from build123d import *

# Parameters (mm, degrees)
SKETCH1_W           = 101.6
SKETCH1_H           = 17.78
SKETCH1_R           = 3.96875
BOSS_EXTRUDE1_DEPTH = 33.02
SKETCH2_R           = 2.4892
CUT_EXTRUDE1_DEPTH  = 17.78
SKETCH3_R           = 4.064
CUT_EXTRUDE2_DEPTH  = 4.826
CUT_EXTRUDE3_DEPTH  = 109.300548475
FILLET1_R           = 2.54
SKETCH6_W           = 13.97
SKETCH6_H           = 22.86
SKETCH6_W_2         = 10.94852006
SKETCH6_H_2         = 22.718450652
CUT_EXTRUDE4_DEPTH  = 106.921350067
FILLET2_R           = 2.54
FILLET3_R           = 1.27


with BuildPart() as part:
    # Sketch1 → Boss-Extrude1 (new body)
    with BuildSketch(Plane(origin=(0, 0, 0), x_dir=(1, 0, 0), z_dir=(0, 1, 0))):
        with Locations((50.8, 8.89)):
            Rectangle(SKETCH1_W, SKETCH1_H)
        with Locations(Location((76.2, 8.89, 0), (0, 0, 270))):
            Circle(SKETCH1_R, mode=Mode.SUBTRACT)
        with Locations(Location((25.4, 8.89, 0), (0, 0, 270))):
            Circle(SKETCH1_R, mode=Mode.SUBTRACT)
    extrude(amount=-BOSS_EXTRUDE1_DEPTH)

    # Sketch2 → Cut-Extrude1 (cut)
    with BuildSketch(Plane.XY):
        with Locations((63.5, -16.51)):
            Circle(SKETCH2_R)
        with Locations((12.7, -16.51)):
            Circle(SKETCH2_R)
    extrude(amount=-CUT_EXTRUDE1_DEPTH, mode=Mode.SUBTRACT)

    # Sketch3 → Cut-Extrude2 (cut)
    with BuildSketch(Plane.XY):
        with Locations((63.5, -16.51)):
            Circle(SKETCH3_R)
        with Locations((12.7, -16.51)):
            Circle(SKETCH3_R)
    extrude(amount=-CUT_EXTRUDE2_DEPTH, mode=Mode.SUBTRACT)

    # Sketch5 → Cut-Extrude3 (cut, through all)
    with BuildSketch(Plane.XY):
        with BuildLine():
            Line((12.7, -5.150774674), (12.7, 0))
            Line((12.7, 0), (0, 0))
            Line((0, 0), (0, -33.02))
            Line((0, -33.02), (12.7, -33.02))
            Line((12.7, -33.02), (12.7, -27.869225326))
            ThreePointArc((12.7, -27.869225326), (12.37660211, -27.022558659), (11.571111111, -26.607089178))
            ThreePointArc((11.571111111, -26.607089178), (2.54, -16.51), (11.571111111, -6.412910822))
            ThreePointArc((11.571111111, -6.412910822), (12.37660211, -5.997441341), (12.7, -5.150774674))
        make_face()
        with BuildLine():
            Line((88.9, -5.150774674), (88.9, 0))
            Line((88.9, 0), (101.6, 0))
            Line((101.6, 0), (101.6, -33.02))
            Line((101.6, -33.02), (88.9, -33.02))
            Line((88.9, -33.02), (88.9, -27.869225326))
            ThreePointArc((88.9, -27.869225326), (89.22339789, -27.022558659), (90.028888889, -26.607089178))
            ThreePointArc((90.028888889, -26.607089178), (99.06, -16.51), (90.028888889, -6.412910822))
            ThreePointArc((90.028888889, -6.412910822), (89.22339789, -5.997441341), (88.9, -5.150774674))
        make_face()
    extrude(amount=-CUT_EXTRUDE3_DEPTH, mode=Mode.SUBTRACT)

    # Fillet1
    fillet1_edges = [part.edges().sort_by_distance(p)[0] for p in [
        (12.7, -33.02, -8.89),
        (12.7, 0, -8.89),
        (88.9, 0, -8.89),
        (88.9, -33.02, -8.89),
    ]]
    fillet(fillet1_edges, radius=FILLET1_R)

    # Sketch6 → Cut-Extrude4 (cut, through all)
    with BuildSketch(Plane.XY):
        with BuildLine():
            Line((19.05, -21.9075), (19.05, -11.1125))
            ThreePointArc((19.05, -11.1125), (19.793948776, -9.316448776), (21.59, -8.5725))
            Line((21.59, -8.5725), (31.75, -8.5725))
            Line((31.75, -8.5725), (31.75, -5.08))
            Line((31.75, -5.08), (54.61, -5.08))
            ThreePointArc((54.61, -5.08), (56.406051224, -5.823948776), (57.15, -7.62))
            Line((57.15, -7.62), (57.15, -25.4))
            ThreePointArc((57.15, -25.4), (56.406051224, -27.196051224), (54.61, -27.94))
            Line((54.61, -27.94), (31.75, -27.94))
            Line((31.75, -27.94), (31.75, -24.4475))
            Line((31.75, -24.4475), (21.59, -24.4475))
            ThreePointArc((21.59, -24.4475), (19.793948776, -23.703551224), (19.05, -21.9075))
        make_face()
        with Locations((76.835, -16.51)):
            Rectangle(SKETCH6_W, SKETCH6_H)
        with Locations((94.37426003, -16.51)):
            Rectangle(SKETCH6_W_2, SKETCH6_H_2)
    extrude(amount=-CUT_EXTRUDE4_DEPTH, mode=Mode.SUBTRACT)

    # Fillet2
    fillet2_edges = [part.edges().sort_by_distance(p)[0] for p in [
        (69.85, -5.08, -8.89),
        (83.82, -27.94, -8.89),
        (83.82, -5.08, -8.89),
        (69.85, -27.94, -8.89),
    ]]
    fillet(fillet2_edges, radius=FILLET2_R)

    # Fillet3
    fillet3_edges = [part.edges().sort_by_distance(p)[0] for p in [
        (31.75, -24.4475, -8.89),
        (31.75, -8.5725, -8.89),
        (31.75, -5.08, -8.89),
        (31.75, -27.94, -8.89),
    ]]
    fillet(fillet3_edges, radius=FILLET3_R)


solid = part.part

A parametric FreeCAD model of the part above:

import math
import FreeCAD as App
import Part
import Sketcher
Q = App.Units.Quantity


def edges_at(feature, points):
    """Names of the edges that pass closest to the given points."""
    edges = feature.Shape.Edges
    near = lambda p: min(range(len(edges)), key=lambda i: edges[i].distToShape(Part.Vertex(*p))[0])
    return sorted({f"Edge{near(p) + 1}" for p in points})

doc = App.newDocument("Part")
params = doc.addObject("Spreadsheet::Sheet", "Params")
for row, (alias, value) in enumerate([
    ("sketch1_width", "4 in"),
    ("sketch1_diameter", "0.3125 in"),
    ("sketch1_height", "0.7 in"),
    ("pad1_length", "1.3 in"),
    ("sketch2_diameter", "0.196 in"),
    ("pocket1_length", "0.7 in"),
    ("sketch3_diameter", "0.32 in"),
    ("pocket2_length", "0.19 in"),
    ("sketch4_radius", "0.4 in"),
    ("sketch4_radius2", "0.05 in"),
    ("sketch4_width", "0.5 in"),
    ("sketch4_height", "1.3 in"),
    ("fillet_radius", "0.1 in"),
    ("sketch5_radius", "0.1 in"),
    ("sketch5_width", "0.4 in"),
    ("sketch5_width2", "0.9 in"),
    ("sketch5_width3", "0.55 in"),
    ("sketch5_height", "0.425 in"),
    ("fillet2_radius", "0.1 in"),
    ("fillet3_radius", "0.05 in"),
], start=1):
    params.set(f"A{row}", alias)
    params.set(f"B{row}", "=" + value)
    params.setAlias(f"B{row}", alias)

body = doc.addObject("PartDesign::Body", "Body")

sketch1 = body.newObject("Sketcher::SketchObject", "Sketch")
sketch1.AttachmentSupport = (doc.getObject("XZ_Plane"), [""])
sketch1.MapMode = "FlatFace"
sketch1.addGeometry(Part.LineSegment(App.Vector(0, -17.8, 0), App.Vector(0, 0, 0)), False)
sketch1.addGeometry(Part.LineSegment(App.Vector(0, 0, 0), App.Vector(101.6, 0, 0)), False)
sketch1.addGeometry(Part.LineSegment(App.Vector(101.6, 0, 0), App.Vector(101.6, -17.8, 0)), False)
sketch1.addGeometry(Part.LineSegment(App.Vector(101.6, -17.8, 0), App.Vector(0, -17.8, 0)), False)
sketch1.addGeometry(Part.Circle(App.Vector(25.4, -8.9, 0), App.Vector(0, 0, 1), 4), False)
sketch1.addGeometry(Part.Circle(App.Vector(76.2, -8.9, 0), App.Vector(0, 0, 1), 4), False)
sketch1.addConstraint(Sketcher.Constraint("Coincident", 0, 2, 1, 1))
sketch1.addConstraint(Sketcher.Constraint("Coincident", 1, 2, 2, 1))
sketch1.addConstraint(Sketcher.Constraint("Coincident", 2, 2, 3, 1))
sketch1.addConstraint(Sketcher.Constraint("Coincident", 3, 2, 0, 1))
sketch1.addConstraint(Sketcher.Constraint("Vertical", 0))
sketch1.addConstraint(Sketcher.Constraint("Horizontal", 1))
sketch1.addConstraint(Sketcher.Constraint("Vertical", 2))
sketch1.addConstraint(Sketcher.Constraint("Horizontal", 3))
sketch1.addConstraint(Sketcher.Constraint("Coincident", 0, 2, -1, 1))
sketch1.addConstraint(Sketcher.Constraint("Equal", 4, 5))
sketch1.addConstraint(Sketcher.Constraint("Horizontal", 4, 3, 5, 3))
sketch1.addConstraint(Sketcher.Constraint("DistanceX", 1, 1, 1, 2, Q("4 in")))
sketch1.addConstraint(Sketcher.Constraint("Diameter", 4, Q("0.3125 in")))
sketch1.addConstraint(Sketcher.Constraint("DistanceY", 0, 1, 0, 2, Q("0.7 in")))
sketch1.addConstraint(Sketcher.Constraint("DistanceX", -1, 1, 4, 3, Q("1 in")))
sketch1.addConstraint(Sketcher.Constraint("DistanceX", -1, 1, 5, 3, Q("3 in")))
sketch1.addConstraint(Sketcher.Constraint("DistanceY", 4, 3, -1, 1, Q("0.35 in")))
sketch1.setExpression("Constraints[11]", "Params.sketch1_width")
sketch1.setExpression("Constraints[12]", "Params.sketch1_diameter")
sketch1.setExpression("Constraints[13]", "Params.sketch1_height")
pad1 = body.newObject("PartDesign::Pad", "Pad")
pad1.Profile = sketch1
pad1.setExpression("Length", "Params.pad1_length")

sketch2 = body.newObject("Sketcher::SketchObject", "Sketch001")
sketch2.AttachmentSupport = (doc.getObject("XY_Plane"), [""])
sketch2.MapMode = "FlatFace"
sketch2.addGeometry(Part.Circle(App.Vector(63.5, -16.5, 0), App.Vector(0, 0, 1), 2.5), False)
sketch2.addGeometry(Part.Circle(App.Vector(12.7, -16.5, 0), App.Vector(0, 0, 1), 2.5), False)
sketch2.addConstraint(Sketcher.Constraint("Equal", 0, 1))
sketch2.addConstraint(Sketcher.Constraint("Horizontal", 0, 3, 1, 3))
sketch2.addConstraint(Sketcher.Constraint("Diameter", 0, Q("0.196 in")))
sketch2.addConstraint(Sketcher.Constraint("DistanceX", 1, 3, 0, 3, Q("2 in")))
sketch2.addConstraint(Sketcher.Constraint("DistanceX", -1, 1, 0, 3, Q("2.5 in")))
sketch2.addConstraint(Sketcher.Constraint("DistanceY", 0, 3, -1, 1, Q("0.65 in")))
sketch2.setExpression("Constraints[2]", "Params.sketch2_diameter")
pocket1 = body.newObject("PartDesign::Pocket", "Pocket")
pocket1.Profile = sketch2
pocket1.setExpression("Length", "Params.pocket1_length")

sketch3 = body.newObject("Sketcher::SketchObject", "Sketch002")
sketch3.AttachmentSupport = (doc.getObject("XY_Plane"), [""])
sketch3.MapMode = "FlatFace"
sketch3.addGeometry(Part.Circle(App.Vector(63.5, -16.5, 0), App.Vector(0, 0, 1), 4.1), False)
sketch3.addGeometry(Part.Circle(App.Vector(12.7, -16.5, 0), App.Vector(0, 0, 1), 4.1), False)
sketch3.addConstraint(Sketcher.Constraint("Equal", 0, 1))
sketch3.addConstraint(Sketcher.Constraint("Horizontal", 0, 3, 1, 3))
sketch3.addConstraint(Sketcher.Constraint("Diameter", 0, Q("0.32 in")))
sketch3.addConstraint(Sketcher.Constraint("DistanceX", 1, 3, 0, 3, Q("2 in")))
sketch3.addConstraint(Sketcher.Constraint("DistanceX", -1, 1, 0, 3, Q("2.5 in")))
sketch3.addConstraint(Sketcher.Constraint("DistanceY", 0, 3, -1, 1, Q("0.65 in")))
sketch3.setExpression("Constraints[2]", "Params.sketch3_diameter")
pocket2 = body.newObject("PartDesign::Pocket", "Pocket001")
pocket2.Profile = sketch3
pocket2.setExpression("Length", "Params.pocket2_length")

sketch4 = body.newObject("Sketcher::SketchObject", "Sketch003")
sketch4.AttachmentSupport = (doc.getObject("XY_Plane"), [""])
sketch4.MapMode = "FlatFace"
sketch4.addGeometry(Part.LineSegment(App.Vector(12.7, -5.2, 0), App.Vector(12.7, 0, 0)), False)
sketch4.addGeometry(Part.LineSegment(App.Vector(12.7, 0, 0), App.Vector(0, 0, 0)), False)
sketch4.addGeometry(Part.LineSegment(App.Vector(0, 0, 0), App.Vector(0, -33, 0)), False)
sketch4.addGeometry(Part.LineSegment(App.Vector(0, -33, 0), App.Vector(12.7, -33, 0)), False)
sketch4.addGeometry(Part.LineSegment(App.Vector(12.7, -33, 0), App.Vector(12.7, -27.9, 0)), False)
sketch4.addGeometry(Part.ArcOfCircle(Part.Circle(App.Vector(11.4, -27.9, 0), App.Vector(0, 0, 1), 1.3), math.radians(0), math.radians(84)), False)
sketch4.addGeometry(Part.ArcOfCircle(Part.Circle(App.Vector(12.7, -16.5, 0), App.Vector(0, 0, 1), 10.2), math.radians(96), math.radians(264)), False)
sketch4.addGeometry(Part.ArcOfCircle(Part.Circle(App.Vector(11.4, -5.2, 0), App.Vector(0, 0, 1), 1.3), math.radians(-84), math.radians(0)), False)
sketch4.addGeometry(Part.LineSegment(App.Vector(88.9, 0, 0), App.Vector(88.9, -5.2, 0)), False)
sketch4.addGeometry(Part.ArcOfCircle(Part.Circle(App.Vector(90.2, -5.2, 0), App.Vector(0, 0, 1), 1.3), math.radians(-180), math.radians(-96)), False)
sketch4.addGeometry(Part.ArcOfCircle(Part.Circle(App.Vector(88.9, -16.5, 0), App.Vector(0, 0, 1), 10.2), math.radians(-84), math.radians(84)), False)
sketch4.addGeometry(Part.ArcOfCircle(Part.Circle(App.Vector(90.2, -27.9, 0), App.Vector(0, 0, 1), 1.3), math.radians(96), math.radians(180)), False)
sketch4.addGeometry(Part.LineSegment(App.Vector(88.9, -27.9, 0), App.Vector(88.9, -33, 0)), False)
sketch4.addGeometry(Part.LineSegment(App.Vector(88.9, -33, 0), App.Vector(101.6, -33, 0)), False)
sketch4.addGeometry(Part.LineSegment(App.Vector(101.6, -33, 0), App.Vector(101.6, 0, 0)), False)
sketch4.addGeometry(Part.LineSegment(App.Vector(101.6, 0, 0), App.Vector(88.9, 0, 0)), False)
sketch4.addConstraint(Sketcher.Constraint("Coincident", 0, 2, 1, 1))
sketch4.addConstraint(Sketcher.Constraint("Coincident", 1, 2, 2, 1))
sketch4.addConstraint(Sketcher.Constraint("Coincident", 2, 2, 3, 1))
sketch4.addConstraint(Sketcher.Constraint("Coincident", 3, 2, 4, 1))
sketch4.addConstraint(Sketcher.Constraint("Tangent", 4, 2, 5, 1))
sketch4.addConstraint(Sketcher.Constraint("Tangent", 5, 2, 6, 2))
sketch4.addConstraint(Sketcher.Constraint("Tangent", 6, 1, 7, 1))
sketch4.addConstraint(Sketcher.Constraint("Tangent", 7, 2, 0, 1))
sketch4.addConstraint(Sketcher.Constraint("Tangent", 8, 2, 9, 1))
sketch4.addConstraint(Sketcher.Constraint("Tangent", 9, 2, 10, 2))
sketch4.addConstraint(Sketcher.Constraint("Tangent", 10, 1, 11, 1))
sketch4.addConstraint(Sketcher.Constraint("Tangent", 11, 2, 12, 1))
sketch4.addConstraint(Sketcher.Constraint("Coincident", 12, 2, 13, 1))
sketch4.addConstraint(Sketcher.Constraint("Coincident", 13, 2, 14, 1))
sketch4.addConstraint(Sketcher.Constraint("Coincident", 14, 2, 15, 1))
sketch4.addConstraint(Sketcher.Constraint("Coincident", 15, 2, 8, 1))
sketch4.addConstraint(Sketcher.Constraint("Vertical", 0))
sketch4.addConstraint(Sketcher.Constraint("Horizontal", 1))
sketch4.addConstraint(Sketcher.Constraint("Vertical", 2))
sketch4.addConstraint(Sketcher.Constraint("Horizontal", 3))
sketch4.addConstraint(Sketcher.Constraint("Vertical", 4))
sketch4.addConstraint(Sketcher.Constraint("Vertical", 8))
sketch4.addConstraint(Sketcher.Constraint("Vertical", 12))
sketch4.addConstraint(Sketcher.Constraint("Horizontal", 13))
sketch4.addConstraint(Sketcher.Constraint("Vertical", 14))
sketch4.addConstraint(Sketcher.Constraint("Horizontal", 15))
sketch4.addConstraint(Sketcher.Constraint("Coincident", 1, 2, -1, 1))
sketch4.addConstraint(Sketcher.Constraint("Equal", 5, 7))
sketch4.addConstraint(Sketcher.Constraint("Equal", 7, 9))
sketch4.addConstraint(Sketcher.Constraint("Equal", 6, 10))
sketch4.addConstraint(Sketcher.Constraint("Equal", 9, 11))
sketch4.addConstraint(Sketcher.Constraint("PointOnObject", 14, 2, -1))
sketch4.addConstraint(Sketcher.Constraint("Horizontal", 7, 3, 9, 3))
sketch4.addConstraint(Sketcher.Constraint("Horizontal", 6, 3, 10, 3))
sketch4.addConstraint(Sketcher.Constraint("Horizontal", 5, 3, 11, 3))
sketch4.addConstraint(Sketcher.Constraint("Horizontal", 3, 2, 12, 2))
sketch4.addConstraint(Sketcher.Constraint("Vertical", 5, 3, 7, 3))
sketch4.addConstraint(Sketcher.Constraint("Vertical", 6, 3, 0, 2))
sketch4.addConstraint(Sketcher.Constraint("Equal", 3, 13))
sketch4.addConstraint(Sketcher.Constraint("Equal", 0, 4))
sketch4.addConstraint(Sketcher.Constraint("Radius", 6, Q("0.4 in")))
sketch4.addConstraint(Sketcher.Constraint("Radius", 5, Q("0.05 in")))
sketch4.addConstraint(Sketcher.Constraint("DistanceX", 1, 2, 1, 1, Q("0.5 in")))
sketch4.addConstraint(Sketcher.Constraint("DistanceY", 2, 2, 2, 1, Q("1.3 in")))
sketch4.addConstraint(Sketcher.Constraint("DistanceX", -1, 1, 13, 2, Q("4 in")))
sketch4.setExpression("Constraints[40]", "Params.sketch4_radius")
sketch4.setExpression("Constraints[41]", "Params.sketch4_radius2")
sketch4.setExpression("Constraints[42]", "Params.sketch4_width")
sketch4.setExpression("Constraints[43]", "Params.sketch4_height")
pocket3 = body.newObject("PartDesign::Pocket", "Pocket002")
pocket3.Profile = sketch4
pocket3.Type = "ThroughAll"
doc.recompute()

fillet = body.newObject("PartDesign::Fillet", "Fillet")
fillet.Base = (pocket3, edges_at(pocket3, [
    (12.7, -33.02, -8.89),
    (12.7, 0, -8.89),
    (88.9, 0, -8.89),
    (88.9, -33.02, -8.89),
]))
fillet.setExpression("Radius", "Params.fillet_radius")

sketch5 = body.newObject("Sketcher::SketchObject", "Sketch004")
sketch5.AttachmentSupport = (doc.getObject("XY_Plane"), [""])
sketch5.MapMode = "FlatFace"
sketch5.addGeometry(Part.LineSegment(App.Vector(19.1, -11.1, 0), App.Vector(19.1, -21.9, 0)), False)
sketch5.addGeometry(Part.ArcOfCircle(Part.Circle(App.Vector(21.6, -21.9, 0), App.Vector(0, 0, 1), 2.5), math.radians(-180), math.radians(-90)), False)
sketch5.addGeometry(Part.LineSegment(App.Vector(21.6, -24.4, 0), App.Vector(31.8, -24.4, 0)), False)
sketch5.addGeometry(Part.LineSegment(App.Vector(31.8, -24.4, 0), App.Vector(31.8, -27.9, 0)), False)
sketch5.addGeometry(Part.LineSegment(App.Vector(31.8, -27.9, 0), App.Vector(54.6, -27.9, 0)), False)
sketch5.addGeometry(Part.ArcOfCircle(Part.Circle(App.Vector(54.6, -25.4, 0), App.Vector(0, 0, 1), 2.5), math.radians(-90), math.radians(0)), False)
sketch5.addGeometry(Part.LineSegment(App.Vector(57.1, -25.4, 0), App.Vector(57.1, -7.6, 0)), False)
sketch5.addGeometry(Part.ArcOfCircle(Part.Circle(App.Vector(54.6, -7.6, 0), App.Vector(0, 0, 1), 2.5), math.radians(0), math.radians(90)), False)
sketch5.addGeometry(Part.LineSegment(App.Vector(54.6, -5.1, 0), App.Vector(31.8, -5.1, 0)), False)
sketch5.addGeometry(Part.LineSegment(App.Vector(31.8, -5.1, 0), App.Vector(31.8, -8.6, 0)), False)
sketch5.addGeometry(Part.LineSegment(App.Vector(31.8, -8.6, 0), App.Vector(21.6, -8.6, 0)), False)
sketch5.addGeometry(Part.ArcOfCircle(Part.Circle(App.Vector(21.6, -11.1, 0), App.Vector(0, 0, 1), 2.5), math.radians(90), math.radians(180)), False)
sketch5.addGeometry(Part.LineSegment(App.Vector(69.8, -5.1, 0), App.Vector(69.8, -27.9, 0)), False)
sketch5.addGeometry(Part.LineSegment(App.Vector(69.8, -27.9, 0), App.Vector(83.8, -27.9, 0)), False)
sketch5.addGeometry(Part.LineSegment(App.Vector(83.8, -27.9, 0), App.Vector(83.8, -5.1, 0)), False)
sketch5.addGeometry(Part.LineSegment(App.Vector(83.8, -5.1, 0), App.Vector(69.8, -5.1, 0)), False)
sketch5.addGeometry(Part.LineSegment(App.Vector(88.9, -5.2, 0), App.Vector(88.9, -27.9, 0)), False)
sketch5.addGeometry(Part.LineSegment(App.Vector(88.9, -27.9, 0), App.Vector(99.8, -27.9, 0)), False)
sketch5.addGeometry(Part.LineSegment(App.Vector(99.8, -27.9, 0), App.Vector(99.8, -5.2, 0)), False)
sketch5.addGeometry(Part.LineSegment(App.Vector(99.8, -5.2, 0), App.Vector(88.9, -5.2, 0)), False)
sketch5.addConstraint(Sketcher.Constraint("Tangent", 0, 2, 1, 1))
sketch5.addConstraint(Sketcher.Constraint("Tangent", 1, 2, 2, 1))
sketch5.addConstraint(Sketcher.Constraint("Coincident", 2, 2, 3, 1))
sketch5.addConstraint(Sketcher.Constraint("Coincident", 3, 2, 4, 1))
sketch5.addConstraint(Sketcher.Constraint("Tangent", 4, 2, 5, 1))
sketch5.addConstraint(Sketcher.Constraint("Tangent", 5, 2, 6, 1))
sketch5.addConstraint(Sketcher.Constraint("Tangent", 6, 2, 7, 1))
sketch5.addConstraint(Sketcher.Constraint("Tangent", 7, 2, 8, 1))
sketch5.addConstraint(Sketcher.Constraint("Coincident", 8, 2, 9, 1))
sketch5.addConstraint(Sketcher.Constraint("Coincident", 9, 2, 10, 1))
sketch5.addConstraint(Sketcher.Constraint("Tangent", 10, 2, 11, 1))
sketch5.addConstraint(Sketcher.Constraint("Tangent", 11, 2, 0, 1))
sketch5.addConstraint(Sketcher.Constraint("Coincident", 12, 2, 13, 1))
sketch5.addConstraint(Sketcher.Constraint("Coincident", 13, 2, 14, 1))
sketch5.addConstraint(Sketcher.Constraint("Coincident", 14, 2, 15, 1))
sketch5.addConstraint(Sketcher.Constraint("Coincident", 15, 2, 12, 1))
sketch5.addConstraint(Sketcher.Constraint("Coincident", 16, 2, 17, 1))
sketch5.addConstraint(Sketcher.Constraint("Coincident", 17, 2, 18, 1))
sketch5.addConstraint(Sketcher.Constraint("Coincident", 18, 2, 19, 1))
sketch5.addConstraint(Sketcher.Constraint("Coincident", 19, 2, 16, 1))
sketch5.addConstraint(Sketcher.Constraint("Vertical", 0))
sketch5.addConstraint(Sketcher.Constraint("Horizontal", 2))
sketch5.addConstraint(Sketcher.Constraint("Vertical", 3))
sketch5.addConstraint(Sketcher.Constraint("Horizontal", 4))
sketch5.addConstraint(Sketcher.Constraint("Vertical", 6))
sketch5.addConstraint(Sketcher.Constraint("Horizontal", 8))
sketch5.addConstraint(Sketcher.Constraint("Vertical", 9))
sketch5.addConstraint(Sketcher.Constraint("Horizontal", 10))
sketch5.addConstraint(Sketcher.Constraint("Vertical", 12))
sketch5.addConstraint(Sketcher.Constraint("Horizontal", 13))
sketch5.addConstraint(Sketcher.Constraint("Vertical", 14))
sketch5.addConstraint(Sketcher.Constraint("Horizontal", 15))
sketch5.addConstraint(Sketcher.Constraint("Vertical", 16))
sketch5.addConstraint(Sketcher.Constraint("Horizontal", 17))
sketch5.addConstraint(Sketcher.Constraint("Vertical", 18))
sketch5.addConstraint(Sketcher.Constraint("Horizontal", 19))
sketch5.addConstraint(Sketcher.Constraint("Equal", 1, 5))
sketch5.addConstraint(Sketcher.Constraint("Equal", 5, 7))
sketch5.addConstraint(Sketcher.Constraint("Equal", 7, 11))
sketch5.addConstraint(Sketcher.Constraint("Horizontal", 4, 2, 12, 2))
sketch5.addConstraint(Sketcher.Constraint("Horizontal", 8, 2, 14, 2))
sketch5.addConstraint(Sketcher.Constraint("Vertical", 3, 2, 8, 2))
sketch5.addConstraint(Sketcher.Constraint("Equal", 3, 9))
sketch5.addConstraint(Sketcher.Constraint("Equal", 8, 12))
sketch5.addConstraint(Sketcher.Constraint("Radius", 1, Q("0.1 in")))
sketch5.addConstraint(Sketcher.Constraint("DistanceX", 2, 1, 2, 2, Q("0.4 in")))
sketch5.addConstraint(Sketcher.Constraint("DistanceX", 4, 1, 4, 2, Q("0.9 in")))
sketch5.addConstraint(Sketcher.Constraint("DistanceY", 5, 3, -1, 1, Q("1 in")))
sketch5.addConstraint(Sketcher.Constraint("DistanceX", 13, 1, 13, 2, Q("0.55 in")))
sketch5.addConstraint(Sketcher.Constraint("DistanceX", -1, 1, 13, 2, Q("3.3 in")))
sketch5.addConstraint(Sketcher.Constraint("DistanceX", -1, 1, 16, 2, Q("3.5 in")))
sketch5.addConstraint(Sketcher.Constraint("DistanceX", 5, 2, 12, 2, Q("0.5 in")))
sketch5.addConstraint(Sketcher.Constraint("DistanceY", 0, 2, 0, 1, Q("0.425 in")))
sketch5.addConstraint(Sketcher.Constraint("DistanceX", 17, 1, 17, 2, 10.94852))
sketch5.addConstraint(Sketcher.Constraint("DistanceY", 16, 2, 16, 1, 22.718451))
sketch5.addConstraint(Sketcher.Constraint("DistanceY", 16, 2, -1, 1, 27.869225))
sketch5.setExpression("Constraints[44]", "Params.sketch5_radius")
sketch5.setExpression("Constraints[45]", "Params.sketch5_width")
sketch5.setExpression("Constraints[46]", "Params.sketch5_width2")
sketch5.setExpression("Constraints[48]", "Params.sketch5_width3")
sketch5.setExpression("Constraints[52]", "Params.sketch5_height")
pocket4 = body.newObject("PartDesign::Pocket", "Pocket003")
pocket4.Profile = sketch5
pocket4.Type = "ThroughAll"
doc.recompute()

fillet2 = body.newObject("PartDesign::Fillet", "Fillet001")
fillet2.Base = (pocket4, edges_at(pocket4, [
    (69.85, -5.08, -8.89),
    (83.82, -27.94, -8.89),
    (83.82, -5.08, -8.89),
    (69.85, -27.94, -8.89),
]))
fillet2.setExpression("Radius", "Params.fillet2_radius")
doc.recompute()

fillet3 = body.newObject("PartDesign::Fillet", "Fillet002")
fillet3.Base = (fillet2, edges_at(fillet2, [
    (31.75, -24.448, -8.89),
    (31.75, -8.572, -8.89),
    (31.75, -5.08, -8.89),
    (31.75, -27.94, -8.89),
]))
fillet3.setExpression("Radius", "Params.fillet3_radius")

doc.recompute()
